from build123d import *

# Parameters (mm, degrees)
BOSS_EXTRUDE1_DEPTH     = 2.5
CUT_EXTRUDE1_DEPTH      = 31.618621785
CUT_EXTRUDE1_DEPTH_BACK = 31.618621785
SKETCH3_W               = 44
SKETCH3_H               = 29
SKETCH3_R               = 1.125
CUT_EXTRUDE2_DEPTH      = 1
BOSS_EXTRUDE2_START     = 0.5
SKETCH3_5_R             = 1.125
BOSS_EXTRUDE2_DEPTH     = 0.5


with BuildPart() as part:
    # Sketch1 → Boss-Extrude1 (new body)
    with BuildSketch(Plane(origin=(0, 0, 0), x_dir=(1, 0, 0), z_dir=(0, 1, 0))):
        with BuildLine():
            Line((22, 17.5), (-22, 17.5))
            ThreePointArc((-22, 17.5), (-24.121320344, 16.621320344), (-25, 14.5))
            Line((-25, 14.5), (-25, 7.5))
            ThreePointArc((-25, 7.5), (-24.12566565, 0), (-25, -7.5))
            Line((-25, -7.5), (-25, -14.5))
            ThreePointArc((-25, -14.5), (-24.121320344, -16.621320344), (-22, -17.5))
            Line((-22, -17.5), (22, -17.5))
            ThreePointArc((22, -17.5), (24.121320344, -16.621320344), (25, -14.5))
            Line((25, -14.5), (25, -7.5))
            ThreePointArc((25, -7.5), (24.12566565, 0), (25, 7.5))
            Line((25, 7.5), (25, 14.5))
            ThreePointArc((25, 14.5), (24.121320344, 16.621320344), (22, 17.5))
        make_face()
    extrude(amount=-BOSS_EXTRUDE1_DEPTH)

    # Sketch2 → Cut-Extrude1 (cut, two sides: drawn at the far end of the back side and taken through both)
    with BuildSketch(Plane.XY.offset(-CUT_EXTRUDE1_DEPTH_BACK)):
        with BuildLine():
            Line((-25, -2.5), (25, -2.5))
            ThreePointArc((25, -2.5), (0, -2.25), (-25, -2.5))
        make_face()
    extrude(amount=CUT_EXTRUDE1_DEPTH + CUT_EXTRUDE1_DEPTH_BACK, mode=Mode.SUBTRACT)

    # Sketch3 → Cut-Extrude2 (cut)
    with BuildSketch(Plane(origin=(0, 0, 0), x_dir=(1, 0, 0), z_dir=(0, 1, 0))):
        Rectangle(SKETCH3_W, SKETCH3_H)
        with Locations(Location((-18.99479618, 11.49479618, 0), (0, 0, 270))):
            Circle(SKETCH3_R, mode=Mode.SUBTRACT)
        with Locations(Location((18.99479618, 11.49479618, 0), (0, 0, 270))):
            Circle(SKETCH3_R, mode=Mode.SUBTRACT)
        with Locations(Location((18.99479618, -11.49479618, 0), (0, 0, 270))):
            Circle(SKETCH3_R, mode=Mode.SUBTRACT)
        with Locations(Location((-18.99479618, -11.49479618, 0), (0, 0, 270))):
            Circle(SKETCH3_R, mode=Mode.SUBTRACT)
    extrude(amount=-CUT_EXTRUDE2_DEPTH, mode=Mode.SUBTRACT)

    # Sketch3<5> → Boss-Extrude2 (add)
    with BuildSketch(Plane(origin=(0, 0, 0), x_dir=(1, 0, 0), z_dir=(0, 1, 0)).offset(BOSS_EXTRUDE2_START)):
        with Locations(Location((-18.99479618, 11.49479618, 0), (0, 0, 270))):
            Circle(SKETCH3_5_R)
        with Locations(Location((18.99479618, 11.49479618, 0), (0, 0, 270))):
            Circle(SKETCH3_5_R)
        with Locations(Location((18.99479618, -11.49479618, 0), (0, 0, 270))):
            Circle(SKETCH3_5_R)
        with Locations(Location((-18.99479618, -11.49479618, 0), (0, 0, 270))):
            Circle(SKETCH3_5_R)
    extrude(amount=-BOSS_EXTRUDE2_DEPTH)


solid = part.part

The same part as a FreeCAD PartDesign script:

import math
import FreeCAD as App
import Part
import Sketcher

doc = App.newDocument("Part")
body = doc.addObject("PartDesign::Body", "Body")

sketch1 = doc.addObject("Sketcher::SketchObject", "Sketch")
body.addObject(sketch1)
sketch1.AttachmentSupport = (doc.XZ_Plane, [""])
sketch1.MapMode = "FlatFace"
sketch1.addGeometry([
    Part.LineSegment(App.Vector(22, -17.5, 0), App.Vector(-22, -17.5, 0)),
    Part.ArcOfCircle(Part.Circle(App.Vector(-22, -14.5, 0), App.Vector(0, 0, 1), 3), math.radians(180), math.radians(270)),
    Part.LineSegment(App.Vector(-25, -14.5, 0), App.Vector(-25, -7.5, 0)),
    Part.ArcOfCircle(Part.Circle(App.Vector(-56.730161, 0, 0), App.Vector(0, 0, 1), 32.604495), math.radians(-13.298816), math.radians(13.298816)),
    Part.LineSegment(App.Vector(-25, 7.5, 0), App.Vector(-25, 14.5, 0)),
    Part.ArcOfCircle(Part.Circle(App.Vector(-22, 14.5, 0), App.Vector(0, 0, 1), 3), math.radians(90), math.radians(180)),
    Part.LineSegment(App.Vector(-22, 17.5, 0), App.Vector(22, 17.5, 0)),
    Part.ArcOfCircle(Part.Circle(App.Vector(22, 14.5, 0), App.Vector(0, 0, 1), 3), math.radians(0), math.radians(90)),
    Part.LineSegment(App.Vector(25, 14.5, 0), App.Vector(25, 7.5, 0)),
    Part.ArcOfCircle(Part.Circle(App.Vector(56.730161, 0, 0), App.Vector(0, 0, 1), 32.604495), math.radians(166.701184), math.radians(193.298816)),
    Part.LineSegment(App.Vector(25, -7.5, 0), App.Vector(25, -14.5, 0)),
    Part.ArcOfCircle(Part.Circle(App.Vector(22, -14.5, 0), App.Vector(0, 0, 1), 3), math.radians(-90), math.radians(0)),
], False)
sketch1.addConstraint([
    Sketcher.Constraint("Tangent", 0, 2, 1, 2),
    Sketcher.Constraint("Tangent", 1, 1, 2, 1),
    Sketcher.Constraint("Coincident", 2, 2, 3, 1),
    Sketcher.Constraint("Coincident", 3, 2, 4, 1),
    Sketcher.Constraint("Tangent", 4, 2, 5, 2),
    Sketcher.Constraint("Tangent", 5, 1, 6, 1),
    Sketcher.Constraint("Tangent", 6, 2, 7, 2),
    Sketcher.Constraint("Tangent", 7, 1, 8, 1),
    Sketcher.Constraint("Coincident", 8, 2, 9, 1),
    Sketcher.Constraint("Coincident", 9, 2, 10, 1),
    Sketcher.Constraint("Tangent", 10, 2, 11, 2),
    Sketcher.Constraint("Tangent", 11, 1, 0, 1),
    Sketcher.Constraint("Horizontal", 0),
    Sketcher.Constraint("Vertical", 2),
    Sketcher.Constraint("Vertical", 4),
    Sketcher.Constraint("Horizontal", 6),
    Sketcher.Constraint("Vertical", 8),
    Sketcher.Constraint("Vertical", 10),
    Sketcher.Constraint("Equal", 1, 5),
    Sketcher.Constraint("Equal", 5, 7),
    Sketcher.Constraint("Equal", 3, 9),
    Sketcher.Constraint("Equal", 7, 11),
    Sketcher.Constraint("Symmetric", 1, 3, 7, 3, -1, 1),
    Sketcher.Constraint("Symmetric", 3, 3, 9, 3, -1, 1),
    Sketcher.Constraint("Symmetric", 3, 2, 8, 2, -2),
    Sketcher.Constraint("Horizontal", 2, 2, 9, 2),
    Sketcher.Constraint("Radius", 1, 3.0),
    Sketcher.Constraint("DistanceX", 0, 2, 0, 1, 44.0),
    Sketcher.Constraint("DistanceY", 2, 1, 2, 2, 7.0),
    Sketcher.Constraint("DistanceY", 1, 3, 5, 3, 29.0),
    Sketcher.Constraint("Radius", 3, 32.604495),
])
pad1 = doc.addObject("PartDesign::Pad", "Pad")
body.addObject(pad1)
pad1.Profile = sketch1
pad1.Length = 2.5

sketch2 = doc.addObject("Sketcher::SketchObject", "Sketch001")
body.addObject(sketch2)
sketch2.AttachmentSupport = (doc.XY_Plane, [""])
sketch2.MapMode = "FlatFace"
sketch2.addGeometry([
    Part.LineSegment(App.Vector(-25, -2.5, 0), App.Vector(25, -2.5, 0)),
    Part.ArcOfCircle(Part.Circle(App.Vector(0, -1252.375, 0), App.Vector(0, 0, 1), 1250.125), math.radians(88.854123), math.radians(91.145877)),
], False)
sketch2.addConstraint([
    Sketcher.Constraint("Coincident", 0, 1, 1, 2),
    Sketcher.Constraint("Coincident", 1, 1, 0, 2),
    Sketcher.Constraint("Horizontal", 0),
    Sketcher.Constraint("PointOnObject", 1, 3, -2),
    Sketcher.Constraint("DistanceX", 0, 1, 0, 2, 50.0),
    Sketcher.Constraint("Radius", 1, 1250.125),
    Sketcher.Constraint("DistanceY", 0, 1, -1, 1, 2.5),
])
pocket1 = doc.addObject("PartDesign::Pocket", "Pocket")
body.addObject(pocket1)
pocket1.Profile = sketch2
pocket1.Type = "ThroughAll"
pocket1.Midplane = True

sketch3 = doc.addObject("Sketcher::SketchObject", "Sketch002")
body.addObject(sketch3)
sketch3.AttachmentSupport = (doc.XZ_Plane, [""])
sketch3.MapMode = "FlatFace"
sketch3.addGeometry([
    Part.LineSegment(App.Vector(-22, -14.5, 0), App.Vector(-22, 14.5, 0)),
    Part.LineSegment(App.Vector(-22, 14.5, 0), App.Vector(22, 14.5, 0)),
    Part.LineSegment(App.Vector(22, 14.5, 0), App.Vector(22, -14.5, 0)),
    Part.LineSegment(App.Vector(22, -14.5, 0), App.Vector(-22, -14.5, 0)),
    Part.Circle(App.Vector(-18.994796, 11.494796, 0), App.Vector(0, 0, 1), 1.125),
    Part.Circle(App.Vector(18.994796, 11.494796, 0), App.Vector(0, 0, 1), 1.125),
    Part.Circle(App.Vector(-18.994796, -11.494796, 0), App.Vector(0, 0, 1), 1.125),
    Part.Circle(App.Vector(18.994796, -11.494796, 0), App.Vector(0, 0, 1), 1.125),
], False)
sketch3.addConstraint([
    Sketcher.Constraint("Coincident", 0, 2, 1, 1),
    Sketcher.Constraint("Coincident", 1, 2, 2, 1),
    Sketcher.Constraint("Coincident", 2, 2, 3, 1),
    Sketcher.Constraint("Coincident", 3, 2, 0, 1),
    Sketcher.Constraint("Vertical", 0),
    Sketcher.Constraint("Horizontal", 1),
    Sketcher.Constraint("Vertical", 2),
    Sketcher.Constraint("Horizontal", 3),
    Sketcher.Constraint("Equal", 4, 5),
    Sketcher.Constraint("Equal", 5, 6),
    Sketcher.Constraint("Equal", 6, 7),
    Sketcher.Constraint("Symmetric", 5, 3, 6, 3, -1, 1),
    Sketcher.Constraint("Symmetric", 4, 3, 7, 3, -1, 1),
    Sketcher.Constraint("Symmetric", 0, 2, 2, 2, -1, 1),
    Sketcher.Constraint("Symmetric", 4, 3, 5, 3, -2),
    Sketcher.Constraint("Diameter", 4, 2.25),
    Sketcher.Constraint("DistanceX", 1, 1, 1, 2, 44.0),
    Sketcher.Constraint("DistanceY", 0, 1, 0, 2, 29.0),
    Sketcher.Constraint("DistanceX", 4, 3, -1, 1, 18.994796),
    Sketcher.Constraint("DistanceY", -1, 1, 4, 3, 11.494796),
])
pocket2 = doc.addObject("PartDesign::Pocket", "Pocket001")
body.addObject(pocket2)
pocket2.Profile = sketch3
pocket2.Length = 1
pocket2.Reversed = True

sketch4 = doc.addObject("Sketcher::SketchObject", "Sketch003")
body.addObject(sketch4)
sketch4.AttachmentSupport = (doc.XZ_Plane, [""])
sketch4.MapMode = "FlatFace"
sketch4.AttachmentOffset = App.Placement(App.Vector(0, 0, -0.5), App.Rotation())
sketch4.addGeometry([
    Part.Circle(App.Vector(-18.994796, -11.494796, 0), App.Vector(0, 0, 1), 1.125),
    Part.Circle(App.Vector(18.994796, -11.494796, 0), App.Vector(0, 0, 1), 1.125),
    Part.Circle(App.Vector(18.994796, 11.494796, 0), App.Vector(0, 0, 1), 1.125),
    Part.Circle(App.Vector(-18.994796, 11.494796, 0), App.Vector(0, 0, 1), 1.125),
], False)
sketch4.addConstraint([
    Sketcher.Constraint("Equal", 0, 1),
    Sketcher.Constraint("Equal", 1, 2),
    Sketcher.Constraint("Equal", 2, 3),
    Sketcher.Constraint("Symmetric", 0, 3, 2, 3, -1, 1),
    Sketcher.Constraint("Symmetric", 1, 3, 3, 3, -1, 1),
    Sketcher.Constraint("Symmetric", 0, 3, 1, 3, -2),
    Sketcher.Constraint("Diameter", 0, 2.25),
    Sketcher.Constraint("DistanceX", 0, 3, -1, 1, 18.994796),
    Sketcher.Constraint("DistanceY", 0, 3, -1, 1, 11.494796),
])
pad2 = doc.addObject("PartDesign::Pad", "Pad001")
body.addObject(pad2)
pad2.Profile = sketch4
pad2.Length = 0.5

doc.recompute()
